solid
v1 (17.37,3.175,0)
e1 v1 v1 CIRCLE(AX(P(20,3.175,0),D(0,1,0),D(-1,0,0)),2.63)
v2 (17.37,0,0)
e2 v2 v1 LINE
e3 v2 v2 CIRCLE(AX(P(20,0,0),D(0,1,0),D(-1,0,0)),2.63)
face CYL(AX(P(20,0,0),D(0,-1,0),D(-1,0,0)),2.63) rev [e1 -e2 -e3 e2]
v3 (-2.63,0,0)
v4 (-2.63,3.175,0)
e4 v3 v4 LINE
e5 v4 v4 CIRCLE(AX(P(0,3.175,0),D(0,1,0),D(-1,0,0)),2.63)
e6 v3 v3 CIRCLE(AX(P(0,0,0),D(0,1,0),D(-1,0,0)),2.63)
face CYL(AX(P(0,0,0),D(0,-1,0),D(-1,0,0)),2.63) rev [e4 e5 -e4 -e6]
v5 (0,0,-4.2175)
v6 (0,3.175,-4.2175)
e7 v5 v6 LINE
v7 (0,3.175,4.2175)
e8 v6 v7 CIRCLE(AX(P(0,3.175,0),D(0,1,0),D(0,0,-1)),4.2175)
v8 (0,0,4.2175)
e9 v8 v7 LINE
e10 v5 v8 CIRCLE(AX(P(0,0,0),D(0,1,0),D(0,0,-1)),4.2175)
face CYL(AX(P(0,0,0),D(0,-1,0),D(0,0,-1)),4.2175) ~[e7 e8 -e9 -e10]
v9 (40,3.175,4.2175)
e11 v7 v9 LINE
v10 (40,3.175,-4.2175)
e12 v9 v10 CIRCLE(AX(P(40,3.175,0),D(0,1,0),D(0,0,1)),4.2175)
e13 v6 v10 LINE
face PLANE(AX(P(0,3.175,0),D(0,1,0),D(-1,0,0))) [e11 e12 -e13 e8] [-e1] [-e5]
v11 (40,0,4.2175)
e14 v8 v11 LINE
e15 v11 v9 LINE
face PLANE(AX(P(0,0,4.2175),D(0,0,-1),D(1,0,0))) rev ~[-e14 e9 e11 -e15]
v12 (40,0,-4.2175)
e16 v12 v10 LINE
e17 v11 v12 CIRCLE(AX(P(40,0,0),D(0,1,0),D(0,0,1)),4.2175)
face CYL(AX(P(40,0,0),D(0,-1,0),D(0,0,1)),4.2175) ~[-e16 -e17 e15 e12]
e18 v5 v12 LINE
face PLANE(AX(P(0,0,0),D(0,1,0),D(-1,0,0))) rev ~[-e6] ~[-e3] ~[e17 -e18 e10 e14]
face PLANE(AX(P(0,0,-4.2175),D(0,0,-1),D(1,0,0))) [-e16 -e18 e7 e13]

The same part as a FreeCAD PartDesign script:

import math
import FreeCAD as App
import Part
import Sketcher
Q = App.Units.Quantity

doc = App.newDocument("Part")
params = doc.addObject("Spreadsheet::Sheet", "Params")
for row, (alias, value) in enumerate([
    ("pad1_length", "0.125 in"),
], start=1):
    params.set(f"A{row}", alias)
    params.set(f"B{row}", "=" + value)
    params.setAlias(f"B{row}", alias)

body = doc.addObject("PartDesign::Body", "Body")

# Sketch on XZ plane
sketch1 = doc.addObject("Sketcher::SketchObject", "Sketch")
body.addObject(sketch1)
sketch1.AttachmentSupport = (doc.XZ_Plane, [""])
sketch1.MapMode = "FlatFace"
sketch1.addGeometry(Part.ArcOfCircle(Part.Circle(App.Vector(0, 0, 0), App.Vector(0, 0, 1), 4.2), math.radians(90), math.radians(270)), False)
sketch1.addGeometry(Part.LineSegment(App.Vector(0, 4.2, 0), App.Vector(40, 4.2, 0)), False)
sketch1.addGeometry(Part.ArcOfCircle(Part.Circle(App.Vector(40, 0, 0), App.Vector(0, 0, 1), 4.2), math.radians(-90), math.radians(90)), False)
sketch1.addGeometry(Part.LineSegment(App.Vector(40, -4.2, 0), App.Vector(0, -4.2, 0)), False)
sketch1.addGeometry(Part.Circle(App.Vector(20, 0, 0), App.Vector(0, 0, 1), 2.6), False)
sketch1.addGeometry(Part.Circle(App.Vector(0, 0, 0), App.Vector(0, 0, 1), 2.6), False)
sketch1.addConstraint(Sketcher.Constraint("Tangent", 0, 1, 1, 1))
sketch1.addConstraint(Sketcher.Constraint("Tangent", 1, 2, 2, 2))
sketch1.addConstraint(Sketcher.Constraint("Tangent", 2, 1, 3, 1))
sketch1.addConstraint(Sketcher.Constraint("Tangent", 3, 2, 0, 2))
sketch1.addConstraint(Sketcher.Constraint("Horizontal", 1))
sketch1.addConstraint(Sketcher.Constraint("Horizontal", 3))
sketch1.addConstraint(Sketcher.Constraint("Coincident", 0, 3, -1, 1))
sketch1.addConstraint(Sketcher.Constraint("Coincident", 5, 3, -1, 1))
sketch1.addConstraint(Sketcher.Constraint("Equal", 4, 5))
sketch1.addConstraint(Sketcher.Constraint("PointOnObject", 4, 3, -1))
sketch1.addConstraint(Sketcher.Constraint("Diameter", 4, Q("5.26 mm")))
sketch1.addConstraint(Sketcher.Constraint("DistanceX", -1, 1, 4, 3, Q("0.7874 in")))
sketch1.addConstraint(Sketcher.Constraint("DistanceX", 4, 3, 2, 3, Q("0.7874 in")))
sketch1.addConstraint(Sketcher.Constraint("Radius", 0, Q("4.2175 mm")))
pad1 = doc.addObject("PartDesign::Pad", "Pad")
body.addObject(pad1)
pad1.Profile = sketch1
pad1.setExpression("Length", "Params.pad1_length")
pad1.Reversed = True

doc.recompute()
